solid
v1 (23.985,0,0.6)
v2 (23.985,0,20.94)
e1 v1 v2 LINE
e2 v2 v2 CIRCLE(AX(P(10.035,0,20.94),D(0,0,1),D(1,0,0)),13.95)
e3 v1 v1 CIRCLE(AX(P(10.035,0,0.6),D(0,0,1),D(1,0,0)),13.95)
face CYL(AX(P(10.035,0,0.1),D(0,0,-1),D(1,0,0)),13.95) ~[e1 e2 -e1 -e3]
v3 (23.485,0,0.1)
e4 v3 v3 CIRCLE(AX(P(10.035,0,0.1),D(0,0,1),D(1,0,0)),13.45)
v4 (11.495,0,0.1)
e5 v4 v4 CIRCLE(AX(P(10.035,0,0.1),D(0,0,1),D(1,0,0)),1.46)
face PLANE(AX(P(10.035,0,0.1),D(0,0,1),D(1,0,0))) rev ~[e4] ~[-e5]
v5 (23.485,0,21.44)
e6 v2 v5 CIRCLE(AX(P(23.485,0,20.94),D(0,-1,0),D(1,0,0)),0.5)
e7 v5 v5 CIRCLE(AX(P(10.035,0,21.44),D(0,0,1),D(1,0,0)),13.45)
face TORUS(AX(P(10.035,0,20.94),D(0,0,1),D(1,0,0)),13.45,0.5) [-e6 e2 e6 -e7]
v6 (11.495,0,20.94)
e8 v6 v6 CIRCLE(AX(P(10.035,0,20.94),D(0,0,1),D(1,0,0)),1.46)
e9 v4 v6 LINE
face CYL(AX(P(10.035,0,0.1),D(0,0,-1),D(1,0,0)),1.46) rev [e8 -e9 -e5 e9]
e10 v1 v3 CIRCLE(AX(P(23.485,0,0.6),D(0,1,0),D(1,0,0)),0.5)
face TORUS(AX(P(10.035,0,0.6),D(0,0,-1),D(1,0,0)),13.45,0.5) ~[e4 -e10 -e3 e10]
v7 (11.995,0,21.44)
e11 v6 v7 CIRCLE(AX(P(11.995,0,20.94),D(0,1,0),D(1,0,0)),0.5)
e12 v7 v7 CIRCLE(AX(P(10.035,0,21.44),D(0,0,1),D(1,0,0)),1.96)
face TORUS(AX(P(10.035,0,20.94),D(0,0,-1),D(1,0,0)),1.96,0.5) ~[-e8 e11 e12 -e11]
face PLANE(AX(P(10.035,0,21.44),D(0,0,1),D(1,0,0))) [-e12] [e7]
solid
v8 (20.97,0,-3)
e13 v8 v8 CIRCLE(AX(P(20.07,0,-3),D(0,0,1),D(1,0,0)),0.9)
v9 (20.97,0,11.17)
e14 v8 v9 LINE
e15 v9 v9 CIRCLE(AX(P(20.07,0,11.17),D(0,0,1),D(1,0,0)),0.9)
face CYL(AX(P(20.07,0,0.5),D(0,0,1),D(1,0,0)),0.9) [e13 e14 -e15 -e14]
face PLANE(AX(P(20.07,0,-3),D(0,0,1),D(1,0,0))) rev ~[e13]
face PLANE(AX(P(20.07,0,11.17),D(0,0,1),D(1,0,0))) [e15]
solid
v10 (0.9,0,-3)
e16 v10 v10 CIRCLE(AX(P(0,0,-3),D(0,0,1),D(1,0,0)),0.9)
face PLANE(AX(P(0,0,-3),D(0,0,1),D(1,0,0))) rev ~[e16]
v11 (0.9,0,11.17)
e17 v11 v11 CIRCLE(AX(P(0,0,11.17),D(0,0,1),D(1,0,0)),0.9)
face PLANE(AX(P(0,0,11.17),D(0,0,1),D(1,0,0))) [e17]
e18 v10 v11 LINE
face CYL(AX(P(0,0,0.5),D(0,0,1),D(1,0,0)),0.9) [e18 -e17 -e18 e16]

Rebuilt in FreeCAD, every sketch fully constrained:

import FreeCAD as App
import Part
import Sketcher


def edges_at(feature, points):
    """Names of the edges that pass closest to the given points."""
    edges = feature.Shape.Edges
    near = lambda p: min(range(len(edges)), key=lambda i: edges[i].distToShape(Part.Vertex(*p))[0])
    return sorted({f"Edge{near(p) + 1}" for p in points})

doc = App.newDocument("Part")
body = doc.addObject("PartDesign::Body", "Body")
body.AllowCompound = True

sketch1 = doc.addObject("Sketcher::SketchObject", "Sketch")
body.addObject(sketch1)
sketch1.AttachmentSupport = (doc.XY_Plane, [""])
sketch1.MapMode = "FlatFace"
sketch1.AttachmentOffset = App.Placement(App.Vector(0, 0, 0.5), App.Rotation())
sketch1.addGeometry(Part.Circle(App.Vector(0, 0, 0), App.Vector(0, 0, 1), 0.9), False)
sketch1.addGeometry(Part.Circle(App.Vector(20.07, 0, 0), App.Vector(0, 0, 1), 0.9), False)
sketch1.addConstraint(Sketcher.Constraint("Coincident", 0, 3, -1, 1))
sketch1.addConstraint(Sketcher.Constraint("Equal", 0, 1))
sketch1.addConstraint(Sketcher.Constraint("PointOnObject", 1, 3, -1))
sketch1.addConstraint(Sketcher.Constraint("Diameter", 0, 1.8))
sketch1.addConstraint(Sketcher.Constraint("DistanceX", -1, 1, 1, 3, 20.07))
pad1 = doc.addObject("PartDesign::Pad", "Pad")
body.addObject(pad1)
pad1.Profile = sketch1
pad1.Type = "TwoLengths"
pad1.Length = 10.67
pad1.Length2 = 3.5
body2 = doc.addObject("PartDesign::Body", "Body001")

sketch2 = doc.addObject("Sketcher::SketchObject", "Sketch001")
body2.addObject(sketch2)
sketch2.AttachmentSupport = (doc.getObject("XY_Plane001"), [""])
sketch2.MapMode = "FlatFace"
sketch2.AttachmentOffset = App.Placement(App.Vector(0, 0, 0.1), App.Rotation())
sketch2.addGeometry(Part.Circle(App.Vector(10.035, 0, 0), App.Vector(0, 0, 1), 13.95), False)
sketch2.addGeometry(Part.Circle(App.Vector(10.035, 0, 0), App.Vector(0, 0, 1), 1.46), False)
sketch2.addConstraint(Sketcher.Constraint("Coincident", 1, 3, 0, 3))
sketch2.addConstraint(Sketcher.Constraint("PointOnObject", 0, 3, -1))
sketch2.addConstraint(Sketcher.Constraint("Diameter", 0, 27.9))
sketch2.addConstraint(Sketcher.Constraint("Diameter", 1, 2.92))
sketch2.addConstraint(Sketcher.Constraint("DistanceX", -1, 1, 0, 3, 10.035))
pad2 = doc.addObject("PartDesign::Pad", "Pad001")
body2.addObject(pad2)
pad2.Profile = sketch2
pad2.Length = 21.34
doc.recompute()

fillet = doc.addObject("PartDesign::Fillet", "Fillet")
body2.addObject(fillet)
fillet.Base = (pad2, edges_at(pad2, [(8.575, 0, 21.44), (-3.915, 0, 21.44), (-3.915, 0, 0.1)]))
fillet.Radius = 0.5

doc.recompute()
